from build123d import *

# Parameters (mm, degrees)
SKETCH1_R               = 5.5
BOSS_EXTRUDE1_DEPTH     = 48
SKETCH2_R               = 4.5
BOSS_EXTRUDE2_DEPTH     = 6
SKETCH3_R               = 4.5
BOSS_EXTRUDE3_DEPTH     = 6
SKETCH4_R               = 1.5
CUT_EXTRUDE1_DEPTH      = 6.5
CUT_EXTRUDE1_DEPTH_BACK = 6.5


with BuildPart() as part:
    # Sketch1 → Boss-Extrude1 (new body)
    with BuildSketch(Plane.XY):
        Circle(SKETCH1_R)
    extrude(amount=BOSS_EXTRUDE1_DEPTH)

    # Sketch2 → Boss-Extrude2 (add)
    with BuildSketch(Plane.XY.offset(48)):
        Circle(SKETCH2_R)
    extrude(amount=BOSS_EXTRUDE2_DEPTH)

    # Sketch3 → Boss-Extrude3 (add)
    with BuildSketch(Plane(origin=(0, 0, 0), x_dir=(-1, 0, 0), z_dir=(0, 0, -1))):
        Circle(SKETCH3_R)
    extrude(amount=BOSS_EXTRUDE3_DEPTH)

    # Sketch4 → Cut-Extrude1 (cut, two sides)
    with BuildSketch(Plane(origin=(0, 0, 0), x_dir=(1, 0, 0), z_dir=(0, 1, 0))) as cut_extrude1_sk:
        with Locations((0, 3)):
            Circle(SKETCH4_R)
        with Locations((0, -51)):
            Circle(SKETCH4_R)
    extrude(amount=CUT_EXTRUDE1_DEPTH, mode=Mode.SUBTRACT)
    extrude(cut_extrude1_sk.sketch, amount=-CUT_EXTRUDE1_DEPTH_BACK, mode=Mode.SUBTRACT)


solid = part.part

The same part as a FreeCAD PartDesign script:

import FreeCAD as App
import Part
import Sketcher
from FreeCAD import Vector
Q = App.Units.Quantity

doc = App.newDocument("Part")
body = doc.addObject("PartDesign::Body", "Body")

# Sketch on XY plane
sketch1 = body.newObject("Sketcher::SketchObject", "Sketch")
sketch1.AttachmentSupport = (doc.getObject("XY_Plane"), [""])
sketch1.MapMode = "FlatFace"
sketch1.addGeometry(Part.Circle(Vector(0, 0, 0), Vector(0, 0, 1), 6), False)
sketch1.addConstraint([
    Sketcher.Constraint("Coincident", 0, 3, -1, 1),
    Sketcher.Constraint("Diameter", 0, Q("11 mm")),
])
pad1 = body.newObject("PartDesign::Pad", "Pad")
pad1.Profile = sketch1
pad1.Length = 48

# Sketch on XY plane
sketch2 = body.newObject("Sketcher::SketchObject", "Sketch001")
sketch2.AttachmentSupport = (doc.getObject("XY_Plane"), [""])
sketch2.MapMode = "FlatFace"
sketch2.AttachmentOffset = App.Placement(Vector(0, 0, 48), App.Rotation())
sketch2.addGeometry(Part.Circle(Vector(0, 0, 0), Vector(0, 0, 1), 4.5), False)
sketch2.addConstraint([
    Sketcher.Constraint("Coincident", 0, 3, -1, 1),
    Sketcher.Constraint("Diameter", 0, Q("9 mm")),
])
pad2 = body.newObject("PartDesign::Pad", "Pad001")
pad2.Profile = sketch2
pad2.Length = 6

# Sketch on XY plane
sketch3 = body.newObject("Sketcher::SketchObject", "Sketch002")
sketch3.AttachmentSupport = (doc.getObject("XY_Plane"), [""])
sketch3.MapMode = "FlatFace"
sketch3.addGeometry(Part.Circle(Vector(0, 0, 0), Vector(0, 0, 1), 4.5), False)
sketch3.addConstraint([
    Sketcher.Constraint("Coincident", 0, 3, -1, 1),
    Sketcher.Constraint("Diameter", 0, Q("9 mm")),
])
pad3 = body.newObject("PartDesign::Pad", "Pad002")
pad3.Profile = sketch3
pad3.Length = 6
pad3.Reversed = True

# Sketch on XZ plane
sketch4 = body.newObject("Sketcher::SketchObject", "Sketch003")
sketch4.AttachmentSupport = (doc.getObject("XZ_Plane"), [""])
sketch4.MapMode = "FlatFace"
sketch4.addGeometry([
    Part.Circle(Vector(0, -3, 0), Vector(0, 0, 1), 1.5),
    Part.Circle(Vector(0, 51, 0), Vector(0, 0, 1), 1.5),
], False)
sketch4.addConstraint([
    Sketcher.Constraint("Equal", 0, 1),
    Sketcher.Constraint("PointOnObject", 0, 3, -2),
    Sketcher.Constraint("PointOnObject", 1, 3, -2),
    Sketcher.Constraint("Diameter", 0, Q("3 mm")),
    Sketcher.Constraint("DistanceY", 0, 3, -1, 1, Q("3 mm")),
    Sketcher.Constraint("DistanceY", -1, 1, 1, 3, Q("51 mm")),
])
pocket1 = body.newObject("PartDesign::Pocket", "Pocket")
pocket1.Profile = sketch4
pocket1.Type = "ThroughAll"
pocket1.Midplane = True

doc.recompute()
